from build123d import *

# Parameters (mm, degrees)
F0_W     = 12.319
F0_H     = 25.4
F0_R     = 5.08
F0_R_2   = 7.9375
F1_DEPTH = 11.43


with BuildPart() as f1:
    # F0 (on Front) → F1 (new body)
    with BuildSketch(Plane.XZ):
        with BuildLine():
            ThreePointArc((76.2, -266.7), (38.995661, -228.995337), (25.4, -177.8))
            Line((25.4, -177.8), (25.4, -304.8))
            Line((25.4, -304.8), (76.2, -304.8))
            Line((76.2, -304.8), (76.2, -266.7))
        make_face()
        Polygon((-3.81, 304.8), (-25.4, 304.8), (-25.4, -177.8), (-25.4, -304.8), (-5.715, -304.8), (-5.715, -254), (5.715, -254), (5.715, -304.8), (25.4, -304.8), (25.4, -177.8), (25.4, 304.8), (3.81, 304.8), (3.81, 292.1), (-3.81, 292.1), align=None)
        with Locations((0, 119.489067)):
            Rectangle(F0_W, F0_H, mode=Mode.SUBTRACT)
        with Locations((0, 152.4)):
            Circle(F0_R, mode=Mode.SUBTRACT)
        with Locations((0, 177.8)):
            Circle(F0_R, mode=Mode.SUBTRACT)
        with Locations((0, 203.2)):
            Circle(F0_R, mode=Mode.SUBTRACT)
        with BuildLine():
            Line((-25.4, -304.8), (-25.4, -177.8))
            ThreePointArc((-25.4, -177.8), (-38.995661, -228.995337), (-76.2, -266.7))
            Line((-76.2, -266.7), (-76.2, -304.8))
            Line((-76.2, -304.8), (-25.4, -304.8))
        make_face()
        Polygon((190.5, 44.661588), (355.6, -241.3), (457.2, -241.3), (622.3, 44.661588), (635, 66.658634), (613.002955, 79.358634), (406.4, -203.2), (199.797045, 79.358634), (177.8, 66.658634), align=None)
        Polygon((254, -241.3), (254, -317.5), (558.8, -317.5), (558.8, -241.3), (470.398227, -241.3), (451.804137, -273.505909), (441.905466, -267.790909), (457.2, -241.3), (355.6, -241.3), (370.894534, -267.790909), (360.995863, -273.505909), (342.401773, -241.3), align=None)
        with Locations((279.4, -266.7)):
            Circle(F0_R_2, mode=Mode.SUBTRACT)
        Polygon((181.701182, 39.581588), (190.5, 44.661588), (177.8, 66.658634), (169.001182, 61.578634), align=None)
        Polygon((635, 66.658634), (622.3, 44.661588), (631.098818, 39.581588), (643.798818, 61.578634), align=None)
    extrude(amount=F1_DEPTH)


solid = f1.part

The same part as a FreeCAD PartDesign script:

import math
import FreeCAD as App
import Part
import Sketcher
Q = App.Units.Quantity


def add_polygon(sketch, points):
    """Adds a closed chain of lines whose ends are joined by coincident constraints."""
    first, n = sketch.GeometryCount, len(points)
    for a, b in zip(points, points[1:] + points[:1]):
        sketch.addGeometry(Part.LineSegment(App.Vector(*a, 0), App.Vector(*b, 0)), False)
    for i in range(n):
        sketch.addConstraint(Sketcher.Constraint("Coincident", first + i, 2, first + (i + 1) % n, 1))

doc = App.newDocument("Part")
body = doc.addObject("PartDesign::Body", "Body")
body.AllowCompound = True

# Sketch on XZ plane
sketch1 = body.newObject("Sketcher::SketchObject", "Sketch")
sketch1.AttachmentSupport = (doc.getObject("XZ_Plane"), [""])
sketch1.MapMode = "FlatFace"
sketch1.addGeometry(Part.ArcOfCircle(Part.Circle(App.Vector(128.5875, -177.8, 0), App.Vector(0, 0, 1), 103.1875), math.radians(-180), math.radians(-120.510238)), False)  # 0
sketch1.addGeometry(Part.LineSegment(App.Vector(25.4, -177.8, 0), App.Vector(25.4, 304.8, 0)), False)  # 1
sketch1.addGeometry(Part.LineSegment(App.Vector(25.4, 304.8, 0), App.Vector(3.81, 304.8, 0)), False)  # 2
sketch1.addGeometry(Part.LineSegment(App.Vector(3.81, 304.8, 0), App.Vector(3.81, 292.1, 0)), False)  # 3
sketch1.addGeometry(Part.LineSegment(App.Vector(3.81, 292.1, 0), App.Vector(-3.81, 292.1, 0)), False)  # 4
sketch1.addGeometry(Part.LineSegment(App.Vector(-3.81, 292.1, 0), App.Vector(-3.81, 304.8, 0)), False)  # 5
sketch1.addGeometry(Part.LineSegment(App.Vector(-3.81, 304.8, 0), App.Vector(-25.4, 304.8, 0)), False)  # 6
sketch1.addGeometry(Part.LineSegment(App.Vector(-25.4, 304.8, 0), App.Vector(-25.4, -177.8, 0)), False)  # 7
sketch1.addGeometry(Part.ArcOfCircle(Part.Circle(App.Vector(-128.5875, -177.8, 0), App.Vector(0, 0, 1), 103.1875), math.radians(-59.489762), math.radians(0)), False)  # 8
sketch1.addGeometry(Part.LineSegment(App.Vector(-76.2, -266.7, 0), App.Vector(-76.2, -304.8, 0)), False)  # 9
sketch1.addGeometry(Part.LineSegment(App.Vector(-76.2, -304.8, 0), App.Vector(-5.715, -304.8, 0)), False)  # 10
sketch1.addGeometry(Part.LineSegment(App.Vector(-5.715, -304.8, 0), App.Vector(-5.715, -254, 0)), False)  # 11
sketch1.addGeometry(Part.LineSegment(App.Vector(-5.715, -254, 0), App.Vector(5.715, -254, 0)), False)  # 12
sketch1.addGeometry(Part.LineSegment(App.Vector(5.715, -254, 0), App.Vector(5.715, -304.8, 0)), False)  # 13
sketch1.addGeometry(Part.LineSegment(App.Vector(5.715, -304.8, 0), App.Vector(76.2, -304.8, 0)), False)  # 14
sketch1.addGeometry(Part.LineSegment(App.Vector(76.2, -304.8, 0), App.Vector(76.2, -266.7, 0)), False)  # 15
add_polygon(sketch1, [(6.1595, 106.789067), (-6.1595, 106.789067), (-6.1595, 132.189067), (6.1595, 132.189067)])  # lines 16-19
sketch1.addGeometry(Part.Circle(App.Vector(0, 152.4, 0), App.Vector(0, 0, 1), 5.08), False)  # 20
sketch1.addGeometry(Part.Circle(App.Vector(0, 177.8, 0), App.Vector(0, 0, 1), 5.08), False)  # 21
sketch1.addGeometry(Part.Circle(App.Vector(0, 203.2, 0), App.Vector(0, 0, 1), 5.08), False)  # 22
add_polygon(sketch1, [(190.5, 44.661588), (355.6, -241.3), (370.894534, -267.790909), (360.995863, -273.505909), (342.401773, -241.3), (254, -241.3), (254, -317.5), (558.8, -317.5), (558.8, -241.3), (470.398227, -241.3), (451.804137, -273.505909), (441.905466, -267.790909), (457.2, -241.3), (622.3, 44.661588), (631.098818, 39.581588), (643.798818, 61.578634), (613.002955, 79.358634), (406.4, -203.2), (199.797045, 79.358634), (169.001182, 61.578634), (181.701182, 39.581588)])  # lines 23-43
sketch1.addGeometry(Part.Circle(App.Vector(279.4, -266.7, 0), App.Vector(0, 0, 1), 7.9375), False)  # 44
sketch1.addConstraint(Sketcher.Constraint("Tangent", 0, 1, 1, 1))
sketch1.addConstraint(Sketcher.Constraint("Coincident", 1, 2, 2, 1))
sketch1.addConstraint(Sketcher.Constraint("Coincident", 2, 2, 3, 1))
sketch1.addConstraint(Sketcher.Constraint("Coincident", 3, 2, 4, 1))
sketch1.addConstraint(Sketcher.Constraint("Coincident", 4, 2, 5, 1))
sketch1.addConstraint(Sketcher.Constraint("Coincident", 5, 2, 6, 1))
sketch1.addConstraint(Sketcher.Constraint("Coincident", 6, 2, 7, 1))
sketch1.addConstraint(Sketcher.Constraint("Tangent", 7, 2, 8, 2))
sketch1.addConstraint(Sketcher.Constraint("Coincident", 8, 1, 9, 1))
sketch1.addConstraint(Sketcher.Constraint("Coincident", 9, 2, 10, 1))
sketch1.addConstraint(Sketcher.Constraint("Coincident", 10, 2, 11, 1))
sketch1.addConstraint(Sketcher.Constraint("Coincident", 11, 2, 12, 1))
sketch1.addConstraint(Sketcher.Constraint("Coincident", 12, 2, 13, 1))
sketch1.addConstraint(Sketcher.Constraint("Coincident", 13, 2, 14, 1))
sketch1.addConstraint(Sketcher.Constraint("Coincident", 14, 2, 15, 1))
sketch1.addConstraint(Sketcher.Constraint("Coincident", 15, 2, 0, 2))
sketch1.addConstraint(Sketcher.Constraint("Vertical", 1))
sketch1.addConstraint(Sketcher.Constraint("Horizontal", 2))
sketch1.addConstraint(Sketcher.Constraint("Vertical", 3))
sketch1.addConstraint(Sketcher.Constraint("Horizontal", 4))
sketch1.addConstraint(Sketcher.Constraint("Vertical", 5))
sketch1.addConstraint(Sketcher.Constraint("Horizontal", 6))
sketch1.addConstraint(Sketcher.Constraint("Vertical", 7))
sketch1.addConstraint(Sketcher.Constraint("Vertical", 9))
sketch1.addConstraint(Sketcher.Constraint("Horizontal", 10))
sketch1.addConstraint(Sketcher.Constraint("Vertical", 11))
sketch1.addConstraint(Sketcher.Constraint("Horizontal", 12))
sketch1.addConstraint(Sketcher.Constraint("Vertical", 13))
sketch1.addConstraint(Sketcher.Constraint("Horizontal", 14))
sketch1.addConstraint(Sketcher.Constraint("Vertical", 15))
sketch1.addConstraint(Sketcher.Constraint("Horizontal", 16))
sketch1.addConstraint(Sketcher.Constraint("Vertical", 17))
sketch1.addConstraint(Sketcher.Constraint("Horizontal", 18))
sketch1.addConstraint(Sketcher.Constraint("Vertical", 19))
sketch1.addConstraint(Sketcher.Constraint("Horizontal", 27))
sketch1.addConstraint(Sketcher.Constraint("Vertical", 28))
sketch1.addConstraint(Sketcher.Constraint("Horizontal", 29))
sketch1.addConstraint(Sketcher.Constraint("Vertical", 30))
sketch1.addConstraint(Sketcher.Constraint("Horizontal", 31))
sketch1.addConstraint(Sketcher.Constraint("Equal", 0, 8))
sketch1.addConstraint(Sketcher.Constraint("Equal", 20, 21))
sketch1.addConstraint(Sketcher.Constraint("Equal", 21, 22))
sketch1.addConstraint(Sketcher.Constraint("Symmetric", 0, 3, 8, 3, -2))
sketch1.addConstraint(Sketcher.Constraint("Symmetric", 2, 2, 5, 2, -2))
sketch1.addConstraint(Sketcher.Constraint("Symmetric", 10, 2, 13, 2, -2))
sketch1.addConstraint(Sketcher.Constraint("PointOnObject", 20, 3, -2))
sketch1.addConstraint(Sketcher.Constraint("PointOnObject", 21, 3, -2))
sketch1.addConstraint(Sketcher.Constraint("PointOnObject", 22, 3, -2))
sketch1.addConstraint(Sketcher.Constraint("Parallel", 23, 24))
sketch1.addConstraint(Sketcher.Constraint("Perpendicular", 24, 25))
sketch1.addConstraint(Sketcher.Constraint("Perpendicular", 25, 26))
sketch1.addConstraint(Sketcher.Constraint("Perpendicular", 32, 33))
sketch1.addConstraint(Sketcher.Constraint("Perpendicular", 33, 34))
sketch1.addConstraint(Sketcher.Constraint("Parallel", 34, 35))
sketch1.addConstraint(Sketcher.Constraint("Perpendicular", 35, 36))
sketch1.addConstraint(Sketcher.Constraint("Perpendicular", 36, 37))
sketch1.addConstraint(Sketcher.Constraint("Perpendicular", 37, 38))
sketch1.addConstraint(Sketcher.Constraint("Perpendicular", 26, 41))
sketch1.addConstraint(Sketcher.Constraint("Perpendicular", 41, 42))
sketch1.addConstraint(Sketcher.Constraint("Perpendicular", 42, 43))
sketch1.addConstraint(Sketcher.Constraint("Horizontal", 44, 3, 8, 1))
sketch1.addConstraint(Sketcher.Constraint("Horizontal", 8, 1, 15, 2))
sketch1.addConstraint(Sketcher.Constraint("Horizontal", 23, 2, 26, 2))
sketch1.addConstraint(Sketcher.Constraint("Horizontal", 27, 2, 30, 2))
sketch1.addConstraint(Sketcher.Constraint("Horizontal", 25, 2, 32, 2))
sketch1.addConstraint(Sketcher.Constraint("Horizontal", 24, 2, 33, 2))
sketch1.addConstraint(Sketcher.Constraint("Horizontal", 31, 2, 34, 2))
sketch1.addConstraint(Sketcher.Constraint("Horizontal", 38, 2, 40, 2))
sketch1.addConstraint(Sketcher.Constraint("Horizontal", 37, 2, 41, 2))
sketch1.addConstraint(Sketcher.Constraint("Horizontal", 36, 2, 42, 2))
sketch1.addConstraint(Sketcher.Constraint("Horizontal", 35, 2, 43, 2))
sketch1.addConstraint(Sketcher.Constraint("Equal", 27, 31))
sketch1.addConstraint(Sketcher.Constraint("Equal", 26, 32))
sketch1.addConstraint(Sketcher.Constraint("Equal", 39, 40))
sketch1.addConstraint(Sketcher.Constraint("Diameter", 20, Q("0.4 in")))
sketch1.addConstraint(Sketcher.Constraint("DistanceX", 29, 1, 29, 2, Q("12 in")))
sketch1.addConstraint(Sketcher.Constraint("DistanceY", 1, 1, 1, 2, Q("19 in")))
sketch1.addConstraint(Sketcher.Constraint("DistanceY", 11, 1, 11, 2, Q("2 in")))
sketch1.addConstraint(Sketcher.Constraint("DistanceY", 17, 1, 17, 2, Q("1 in")))
sketch1.addConstraint(Sketcher.Constraint("DistanceY", 28, 2, 28, 1, Q("3 in")))
sketch1.addConstraint(Sketcher.Constraint("Distance", 23, Q("13 in")))
sketch1.addConstraint(Sketcher.Constraint("Distance", 37, Q("1 in")))
sketch1.addConstraint(Sketcher.Constraint("Diameter", 44, Q("0.625 in")))
sketch1.addConstraint(Sketcher.Constraint("DistanceX", 4, 2, 4, 1, Q("0.3 in")))
sketch1.addConstraint(Sketcher.Constraint("DistanceY", 3, 2, 3, 1, Q("0.5 in")))
sketch1.addConstraint(Sketcher.Constraint("DistanceY", 9, 2, 9, 1, Q("1.5 in")))
sketch1.addConstraint(Sketcher.Constraint("DistanceY", 0, 3, -1, 1, Q("7 in")))
sketch1.addConstraint(Sketcher.Constraint("DistanceY", -1, 1, 20, 3, Q("6 in")))
sketch1.addConstraint(Sketcher.Constraint("DistanceY", -1, 1, 21, 3, Q("7 in")))
sketch1.addConstraint(Sketcher.Constraint("DistanceY", -1, 1, 22, 3, Q("8 in")))
sketch1.addConstraint(Sketcher.Constraint("DistanceX", -1, 1, 44, 3, Q("11 in")))
sketch1.addConstraint(Sketcher.Constraint("DistanceX", -1, 1, 0, 1, Q("1 in")))
sketch1.addConstraint(Sketcher.Constraint("DistanceX", 8, 1, -1, 1, Q("3 in")))
sketch1.addConstraint(Sketcher.Constraint("DistanceY", 9, 2, -1, 1, Q("12 in")))
sketch1.addConstraint(Sketcher.Constraint("DistanceX", -1, 1, 23, 2, Q("14 in")))
sketch1.addConstraint(Sketcher.Constraint("DistanceX", -1, 1, 27, 2, Q("10 in")))
sketch1.addConstraint(Sketcher.Constraint("DistanceY", 39, 2, -1, 1, Q("8 in")))
sketch1.addConstraint(Sketcher.Constraint("Angle", 23, Q("-60 deg")))
sketch1.addConstraint(Sketcher.Constraint("DistanceY", 44, 3, 23, 2, Q("1 in")))
sketch1.addConstraint(Sketcher.Constraint("Distance", 36, Q("0.4 in")))
sketch1.addConstraint(Sketcher.Constraint("Distance", 38, Q("1.4 in")))
sketch1.addConstraint(Sketcher.Constraint("DistanceX", 12, 1, 12, 2, Q("0.45 in")))
sketch1.addConstraint(Sketcher.Constraint("Distance", 25, Q("0.45 in")))
sketch1.addConstraint(Sketcher.Constraint("DistanceX", 16, 2, 16, 1, Q("0.485 in")))
sketch1.addConstraint(Sketcher.Constraint("DistanceX", 16, 2, -1, 1, Q("0.2425 in")))
sketch1.addConstraint(Sketcher.Constraint("Distance", 26, Q("37.18818 mm")))
sketch1.addConstraint(Sketcher.Constraint("DistanceY", 42, 2, 19, 2, Q("67.207479 mm")))
pad1 = body.newObject("PartDesign::Pad", "Pad")
pad1.Profile = sketch1
pad1.Length = Q("0.45 in")

doc.recompute()
